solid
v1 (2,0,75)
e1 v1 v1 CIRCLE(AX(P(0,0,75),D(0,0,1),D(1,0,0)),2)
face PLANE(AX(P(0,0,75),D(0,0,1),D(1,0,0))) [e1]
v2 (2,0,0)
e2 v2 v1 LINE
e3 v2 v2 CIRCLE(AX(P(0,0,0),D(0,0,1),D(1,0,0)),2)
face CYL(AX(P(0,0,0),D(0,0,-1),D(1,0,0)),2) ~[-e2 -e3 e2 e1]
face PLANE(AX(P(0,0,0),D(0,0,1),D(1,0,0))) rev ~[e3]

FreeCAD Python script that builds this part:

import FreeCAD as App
import Part
import Sketcher

V = App.Vector

doc = App.newDocument("Part")
params = doc.addObject("Spreadsheet::Sheet", "Params")
for row, (alias, value) in enumerate([
    ("sketch1_diameter", "4 mm"),
    ("pad1_length", "75 mm"),
], start=1):
    params.set(f"A{row}", alias)
    params.set(f"B{row}", "=" + value)
    params.setAlias(f"B{row}", alias)

body = doc.addObject("PartDesign::Body", "Body")

sketch1 = body.newObject("Sketcher::SketchObject", "Sketch")
sketch1.AttachmentSupport = (doc.getObject("XY_Plane"), [""])
sketch1.MapMode = "FlatFace"
sketch1.addGeometry(Part.Circle(V(0, 0, 0), V(0, 0, 1), 2), False)
sketch1.addConstraint([
    Sketcher.Constraint("Coincident", 0, 3, -1, 1),
    Sketcher.Constraint("Diameter", 0, 4.0),
])
sketch1.setExpression("Constraints[1]", "Params.sketch1_diameter")
pad1 = body.newObject("PartDesign::Pad", "Pad")
pad1.Profile = sketch1
pad1.setExpression("Length", "Params.pad1_length")

doc.recompute()
